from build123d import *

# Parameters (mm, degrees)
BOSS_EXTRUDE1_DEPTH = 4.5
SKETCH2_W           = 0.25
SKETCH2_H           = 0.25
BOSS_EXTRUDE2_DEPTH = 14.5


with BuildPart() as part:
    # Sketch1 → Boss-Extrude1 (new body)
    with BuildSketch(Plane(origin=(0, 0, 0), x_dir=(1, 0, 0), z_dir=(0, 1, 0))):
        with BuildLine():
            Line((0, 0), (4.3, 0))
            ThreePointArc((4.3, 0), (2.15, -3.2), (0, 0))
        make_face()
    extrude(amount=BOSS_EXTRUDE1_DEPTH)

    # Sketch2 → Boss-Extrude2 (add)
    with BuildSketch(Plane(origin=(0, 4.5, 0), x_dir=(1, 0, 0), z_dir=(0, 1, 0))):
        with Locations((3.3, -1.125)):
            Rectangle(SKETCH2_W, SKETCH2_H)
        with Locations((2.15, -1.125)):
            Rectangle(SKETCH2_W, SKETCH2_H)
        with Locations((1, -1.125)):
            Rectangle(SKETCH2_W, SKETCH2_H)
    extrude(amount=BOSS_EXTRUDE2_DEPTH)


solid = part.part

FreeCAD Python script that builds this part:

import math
import FreeCAD as App
import Part
import Sketcher

V = App.Vector


def add_polygon(sketch, points):
    """Adds a closed chain of lines whose ends are joined by coincident constraints."""
    first, n = sketch.GeometryCount, len(points)
    for a, b in zip(points, points[1:] + points[:1]):
        sketch.addGeometry(Part.LineSegment(App.Vector(*a, 0), App.Vector(*b, 0)), False)
    for i in range(n):
        sketch.addConstraint(Sketcher.Constraint("Coincident", first + i, 2, first + (i + 1) % n, 1))

doc = App.newDocument("Part")
params = doc.addObject("Spreadsheet::Sheet", "Params")
for row, (alias, value) in enumerate([
    ("sketch1_width", "4.3 mm"),
    ("pad1_length", "4.5 mm"),
    ("sketch2_width", "0.25 mm"),
    ("pad2_length", "14.5 mm"),
], start=1):
    params.set(f"A{row}", alias)
    params.set(f"B{row}", "=" + value)
    params.setAlias(f"B{row}", alias)

body = doc.addObject("PartDesign::Body", "Body")

# Sketch on XZ plane
sketch1 = body.newObject("Sketcher::SketchObject", "Sketch")
sketch1.AttachmentSupport = (doc.getObject("XZ_Plane"), [""])
sketch1.MapMode = "FlatFace"
sketch1.addGeometry([
    Part.LineSegment(V(4.3, 0, 0), V(0, 0, 0)),
    Part.ArcOfCircle(Part.Circle(V(2.1, 0.9, 0), V(0, 0, 1), 2.3), math.radians(-22), math.radians(202)),
], False)
sketch1.addConstraint([
    Sketcher.Constraint("Coincident", 0, 1, 1, 1),
    Sketcher.Constraint("Coincident", 1, 2, 0, 2),
    Sketcher.Constraint("Horizontal", 0),
    Sketcher.Constraint("Coincident", 1, 2, -1, 1),
    Sketcher.Constraint("DistanceX", 0, 2, 0, 1, 4.3),
    Sketcher.Constraint("Radius", 1, 2.322266),
])
sketch1.setExpression("Constraints[4]", "Params.sketch1_width")
pad1 = body.newObject("PartDesign::Pad", "Pad")
pad1.Profile = sketch1
pad1.setExpression("Length", "Params.pad1_length")
pad1.Reversed = True

# Sketch on XZ plane
sketch2 = body.newObject("Sketcher::SketchObject", "Sketch001")
sketch2.AttachmentSupport = (doc.getObject("XZ_Plane"), [""])
sketch2.MapMode = "FlatFace"
sketch2.AttachmentOffset = App.Placement(V(0, 0, -4.5), App.Rotation())
add_polygon(sketch2, [(3.17, 1), (3.17, 1.25), (3.42, 1.25), (3.42, 1)])  # lines 0-3
add_polygon(sketch2, [(2.02, 1), (2.02, 1.25), (2.27, 1.25), (2.27, 1)])  # lines 4-7
add_polygon(sketch2, [(0.88, 1), (0.88, 1.25), (1.12, 1.25), (1.12, 1)])  # lines 8-11
sketch2.addConstraint([
    Sketcher.Constraint("Vertical", 0),
    Sketcher.Constraint("Horizontal", 1),
    Sketcher.Constraint("Vertical", 2),
    Sketcher.Constraint("Horizontal", 3),
    Sketcher.Constraint("Vertical", 4),
    Sketcher.Constraint("Horizontal", 5),
    Sketcher.Constraint("Vertical", 6),
    Sketcher.Constraint("Horizontal", 7),
    Sketcher.Constraint("Vertical", 8),
    Sketcher.Constraint("Horizontal", 9),
    Sketcher.Constraint("Vertical", 10),
    Sketcher.Constraint("Horizontal", 11),
    Sketcher.Constraint("Horizontal", 1, 2, 4, 2),
    Sketcher.Constraint("Horizontal", 3, 2, 6, 2),
    Sketcher.Constraint("Horizontal", 5, 2, 8, 2),
    Sketcher.Constraint("Horizontal", 7, 2, 10, 2),
    Sketcher.Constraint("Equal", 3, 5),
    Sketcher.Constraint("Equal", 7, 9),
    Sketcher.Constraint("Equal", 11, 0),
    Sketcher.Constraint("DistanceY", -1, 1, 2, 2, 1.0),
    Sketcher.Constraint("DistanceX", 1, 1, 1, 2, 0.25),
    Sketcher.Constraint("DistanceX", 4, 2, 1, 2, 1.4),
    Sketcher.Constraint("DistanceX", 8, 2, 5, 2, 1.4),
    Sketcher.Constraint("DistanceX", -1, 1, 0, 2, 3.175),
])
sketch2.setExpression("Constraints[32]", "Params.sketch2_width")
pad2 = body.newObject("PartDesign::Pad", "Pad001")
pad2.Profile = sketch2
pad2.setExpression("Length", "Params.pad2_length")
pad2.Reversed = True

doc.recompute()
